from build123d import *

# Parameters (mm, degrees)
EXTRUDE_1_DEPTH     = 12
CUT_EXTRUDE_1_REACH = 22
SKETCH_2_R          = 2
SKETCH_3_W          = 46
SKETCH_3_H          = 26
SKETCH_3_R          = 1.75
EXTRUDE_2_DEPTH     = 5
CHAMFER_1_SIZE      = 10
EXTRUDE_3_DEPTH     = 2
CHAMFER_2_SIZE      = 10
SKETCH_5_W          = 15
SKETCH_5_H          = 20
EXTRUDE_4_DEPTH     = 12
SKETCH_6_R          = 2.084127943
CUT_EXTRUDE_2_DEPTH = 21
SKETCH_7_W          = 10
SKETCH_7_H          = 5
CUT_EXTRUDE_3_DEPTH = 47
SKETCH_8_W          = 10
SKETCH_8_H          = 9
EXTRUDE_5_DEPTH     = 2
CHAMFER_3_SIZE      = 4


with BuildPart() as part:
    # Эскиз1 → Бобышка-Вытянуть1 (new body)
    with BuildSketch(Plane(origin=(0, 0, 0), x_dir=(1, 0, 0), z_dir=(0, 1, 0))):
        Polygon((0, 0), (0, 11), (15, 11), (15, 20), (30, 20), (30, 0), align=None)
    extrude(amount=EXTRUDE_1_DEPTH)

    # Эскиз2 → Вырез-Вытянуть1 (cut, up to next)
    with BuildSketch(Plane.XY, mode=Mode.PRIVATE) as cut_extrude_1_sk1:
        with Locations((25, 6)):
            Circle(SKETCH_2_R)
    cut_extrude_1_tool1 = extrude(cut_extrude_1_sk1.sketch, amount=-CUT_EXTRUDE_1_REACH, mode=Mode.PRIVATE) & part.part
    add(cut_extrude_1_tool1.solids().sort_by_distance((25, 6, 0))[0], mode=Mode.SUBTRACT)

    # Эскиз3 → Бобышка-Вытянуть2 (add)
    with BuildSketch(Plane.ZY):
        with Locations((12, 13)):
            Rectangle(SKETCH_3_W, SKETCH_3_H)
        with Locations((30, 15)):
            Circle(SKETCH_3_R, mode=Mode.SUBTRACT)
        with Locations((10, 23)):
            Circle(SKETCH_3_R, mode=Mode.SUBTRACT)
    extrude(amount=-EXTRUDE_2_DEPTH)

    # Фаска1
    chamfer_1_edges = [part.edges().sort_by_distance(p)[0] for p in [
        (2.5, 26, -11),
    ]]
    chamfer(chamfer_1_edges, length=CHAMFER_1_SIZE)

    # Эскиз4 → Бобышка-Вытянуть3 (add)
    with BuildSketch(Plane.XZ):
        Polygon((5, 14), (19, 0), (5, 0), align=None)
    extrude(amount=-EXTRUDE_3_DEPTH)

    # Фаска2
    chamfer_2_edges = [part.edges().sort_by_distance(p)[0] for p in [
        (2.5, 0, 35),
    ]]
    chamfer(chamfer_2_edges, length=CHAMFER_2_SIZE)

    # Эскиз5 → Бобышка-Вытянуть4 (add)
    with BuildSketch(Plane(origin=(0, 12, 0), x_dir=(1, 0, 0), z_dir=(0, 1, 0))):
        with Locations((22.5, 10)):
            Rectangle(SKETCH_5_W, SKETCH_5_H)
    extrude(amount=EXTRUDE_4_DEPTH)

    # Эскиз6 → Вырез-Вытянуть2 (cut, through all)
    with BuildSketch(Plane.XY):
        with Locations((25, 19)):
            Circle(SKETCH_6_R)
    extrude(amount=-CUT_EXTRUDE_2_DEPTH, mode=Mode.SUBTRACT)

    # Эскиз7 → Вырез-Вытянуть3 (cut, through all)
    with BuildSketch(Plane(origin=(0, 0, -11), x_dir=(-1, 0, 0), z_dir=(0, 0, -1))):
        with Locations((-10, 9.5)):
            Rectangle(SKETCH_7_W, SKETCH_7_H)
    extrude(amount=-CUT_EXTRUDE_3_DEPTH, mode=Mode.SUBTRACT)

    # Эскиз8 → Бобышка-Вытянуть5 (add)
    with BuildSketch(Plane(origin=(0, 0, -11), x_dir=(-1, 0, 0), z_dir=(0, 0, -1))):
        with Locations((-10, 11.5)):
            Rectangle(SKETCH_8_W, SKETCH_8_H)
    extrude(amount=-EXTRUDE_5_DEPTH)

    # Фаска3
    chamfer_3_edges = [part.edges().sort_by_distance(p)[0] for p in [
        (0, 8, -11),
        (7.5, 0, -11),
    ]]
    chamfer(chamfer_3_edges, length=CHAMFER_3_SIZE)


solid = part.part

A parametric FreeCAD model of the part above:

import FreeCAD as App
import Part
import Sketcher

V = App.Vector


def edges_at(feature, points):
    """Names of the edges that pass closest to the given points."""
    edges = feature.Shape.Edges
    near = lambda p: min(range(len(edges)), key=lambda i: edges[i].distToShape(Part.Vertex(*p))[0])
    return sorted({f"Edge{near(p) + 1}" for p in points})

doc = App.newDocument("Part")
params = doc.addObject("Spreadsheet::Sheet", "Params")
for row, (alias, value) in enumerate([
    ("sketch1_width", "30 mm"),
    ("sketch1_height", "11 mm"),
    ("sketch1_height2", "20 mm"),
    ("pad1_length", "12 mm"),
    ("sketch2_diameter", "4 mm"),
    ("sketch3_diameter", "3.5 mm"),
    ("sketch3_width", "26 mm"),
    ("sketch3_height", "46 mm"),
    ("pad2_length", "5 mm"),
    ("chamfer_size", "10 mm"),
    ("sketch4_width", "14 mm"),
    ("pad3_length", "2 mm"),
    ("chamfer2_size", "10 mm"),
    ("sketch5_width", "15 mm"),
    ("sketch5_height", "20 mm"),
    ("pad4_length", "12 mm"),
    ("sketch7_width", "10 mm"),
    ("sketch7_height", "5 mm"),
    ("sketch8_width", "10 mm"),
    ("sketch8_height", "9 mm"),
    ("pad5_length", "2 mm"),
    ("chamfer3_size", "4 mm"),
], start=1):
    params.set(f"A{row}", alias)
    params.set(f"B{row}", "=" + value)
    params.setAlias(f"B{row}", alias)

body = doc.addObject("PartDesign::Body", "Body")

sketch1 = body.newObject("Sketcher::SketchObject", "Sketch")
sketch1.AttachmentSupport = (doc.getObject("XZ_Plane"), [""])
sketch1.MapMode = "FlatFace"
sketch1.addGeometry(Part.LineSegment(V(0, -11, 0), V(0, 0, 0)), False)
sketch1.addGeometry(Part.LineSegment(V(0, 0, 0), V(30, 0, 0)), False)
sketch1.addGeometry(Part.LineSegment(V(30, 0, 0), V(30, -20, 0)), False)
sketch1.addGeometry(Part.LineSegment(V(30, -20, 0), V(15, -20, 0)), False)
sketch1.addGeometry(Part.LineSegment(V(15, -20, 0), V(15, -11, 0)), False)
sketch1.addGeometry(Part.LineSegment(V(15, -11, 0), V(0, -11, 0)), False)
sketch1.addConstraint(Sketcher.Constraint("Coincident", 0, 2, 1, 1))
sketch1.addConstraint(Sketcher.Constraint("Coincident", 1, 2, 2, 1))
sketch1.addConstraint(Sketcher.Constraint("Coincident", 2, 2, 3, 1))
sketch1.addConstraint(Sketcher.Constraint("Coincident", 3, 2, 4, 1))
sketch1.addConstraint(Sketcher.Constraint("Coincident", 4, 2, 5, 1))
sketch1.addConstraint(Sketcher.Constraint("Coincident", 5, 2, 0, 1))
sketch1.addConstraint(Sketcher.Constraint("Vertical", 0))
sketch1.addConstraint(Sketcher.Constraint("Horizontal", 1))
sketch1.addConstraint(Sketcher.Constraint("Vertical", 2))
sketch1.addConstraint(Sketcher.Constraint("Horizontal", 3))
sketch1.addConstraint(Sketcher.Constraint("Vertical", 4))
sketch1.addConstraint(Sketcher.Constraint("Horizontal", 5))
sketch1.addConstraint(Sketcher.Constraint("Coincident", 0, 2, -1, 1))
sketch1.addConstraint(Sketcher.Constraint("Equal", 3, 5))
sketch1.addConstraint(Sketcher.Constraint("DistanceX", 1, 1, 1, 2, 30.0))
sketch1.addConstraint(Sketcher.Constraint("DistanceY", 0, 1, 0, 2, 11.0))
sketch1.addConstraint(Sketcher.Constraint("DistanceY", 2, 2, 2, 1, 20.0))
sketch1.setExpression("Constraints[14]", "Params.sketch1_width")
sketch1.setExpression("Constraints[15]", "Params.sketch1_height")
sketch1.setExpression("Constraints[16]", "Params.sketch1_height2")
pad1 = body.newObject("PartDesign::Pad", "Pad")
pad1.Profile = sketch1
pad1.setExpression("Length", "Params.pad1_length")
pad1.Reversed = True

sketch2 = body.newObject("Sketcher::SketchObject", "Sketch001")
sketch2.AttachmentSupport = (doc.getObject("XY_Plane"), [""])
sketch2.MapMode = "FlatFace"
sketch2.addGeometry(Part.Circle(V(25, 6, 0), V(0, 0, 1), 2), False)
sketch2.addConstraint(Sketcher.Constraint("Diameter", 0, 4.0))
sketch2.addConstraint(Sketcher.Constraint("DistanceX", -1, 1, 0, 3, 25.0))
sketch2.addConstraint(Sketcher.Constraint("DistanceY", -1, 1, 0, 3, 6.0))
sketch2.setExpression("Constraints[0]", "Params.sketch2_diameter")
pocket1 = body.newObject("PartDesign::Pocket", "Pocket")
pocket1.Profile = sketch2
pocket1.Type = "UpToFirst"

sketch3 = body.newObject("Sketcher::SketchObject", "Sketch002")
sketch3.AttachmentSupport = (doc.getObject("YZ_Plane"), [""])
sketch3.MapMode = "FlatFace"
sketch3.addGeometry(Part.LineSegment(V(26, -11, 0), V(0, -11, 0)), False)
sketch3.addGeometry(Part.LineSegment(V(0, -11, 0), V(0, 35, 0)), False)
sketch3.addGeometry(Part.LineSegment(V(0, 35, 0), V(26, 35, 0)), False)
sketch3.addGeometry(Part.LineSegment(V(26, 35, 0), V(26, -11, 0)), False)
sketch3.addGeometry(Part.Circle(V(15, 30, 0), V(0, 0, 1), 1.8), False)
sketch3.addGeometry(Part.Circle(V(23, 10, 0), V(0, 0, 1), 1.8), False)
sketch3.addConstraint(Sketcher.Constraint("Coincident", 0, 2, 1, 1))
sketch3.addConstraint(Sketcher.Constraint("Coincident", 1, 2, 2, 1))
sketch3.addConstraint(Sketcher.Constraint("Coincident", 2, 2, 3, 1))
sketch3.addConstraint(Sketcher.Constraint("Coincident", 3, 2, 0, 1))
sketch3.addConstraint(Sketcher.Constraint("Horizontal", 0))
sketch3.addConstraint(Sketcher.Constraint("Vertical", 1))
sketch3.addConstraint(Sketcher.Constraint("Horizontal", 2))
sketch3.addConstraint(Sketcher.Constraint("Vertical", 3))
sketch3.addConstraint(Sketcher.Constraint("Equal", 4, 5))
sketch3.addConstraint(Sketcher.Constraint("PointOnObject", 0, 2, -2))
sketch3.addConstraint(Sketcher.Constraint("Diameter", 4, 3.5))
sketch3.addConstraint(Sketcher.Constraint("DistanceX", 0, 2, 0, 1, 26.0))
sketch3.addConstraint(Sketcher.Constraint("DistanceY", 1, 1, 1, 2, 46.0))
sketch3.addConstraint(Sketcher.Constraint("DistanceX", -1, 1, 4, 3, 15.0))
sketch3.addConstraint(Sketcher.Constraint("DistanceY", -1, 1, 4, 3, 30.0))
sketch3.addConstraint(Sketcher.Constraint("DistanceX", -1, 1, 5, 3, 23.0))
sketch3.addConstraint(Sketcher.Constraint("DistanceY", -1, 1, 5, 3, 10.0))
sketch3.addConstraint(Sketcher.Constraint("DistanceY", 0, 2, -1, 1, 11.0))
sketch3.setExpression("Constraints[10]", "Params.sketch3_diameter")
sketch3.setExpression("Constraints[11]", "Params.sketch3_width")
sketch3.setExpression("Constraints[12]", "Params.sketch3_height")
pad2 = body.newObject("PartDesign::Pad", "Pad001")
pad2.Profile = sketch3
pad2.setExpression("Length", "Params.pad2_length")
doc.recompute()

chamfer = body.newObject("PartDesign::Chamfer", "Chamfer")
chamfer.Base = (pad2, edges_at(pad2, [(2.5, 26, -11)]))
chamfer.setExpression("Size", "Params.chamfer_size")

sketch4 = body.newObject("Sketcher::SketchObject", "Sketch003")
sketch4.AttachmentSupport = (doc.getObject("XZ_Plane"), [""])
sketch4.MapMode = "FlatFace"
sketch4.addGeometry(Part.LineSegment(V(19, 0, 0), V(5, 14, 0)), False)
sketch4.addGeometry(Part.LineSegment(V(5, 14, 0), V(5, 0, 0)), False)
sketch4.addGeometry(Part.LineSegment(V(5, 0, 0), V(19, 0, 0)), False)
sketch4.addConstraint(Sketcher.Constraint("Coincident", 0, 2, 1, 1))
sketch4.addConstraint(Sketcher.Constraint("Coincident", 1, 2, 2, 1))
sketch4.addConstraint(Sketcher.Constraint("Coincident", 2, 2, 0, 1))
sketch4.addConstraint(Sketcher.Constraint("Vertical", 1))
sketch4.addConstraint(Sketcher.Constraint("Horizontal", 2))
sketch4.addConstraint(Sketcher.Constraint("PointOnObject", 1, 2, -1))
sketch4.addConstraint(Sketcher.Constraint("Equal", 2, 1))
sketch4.addConstraint(Sketcher.Constraint("DistanceX", 2, 1, 2, 2, 14.0))
sketch4.addConstraint(Sketcher.Constraint("DistanceX", -1, 1, 0, 2, 5.0))
sketch4.setExpression("Constraints[7]", "Params.sketch4_width")
pad3 = body.newObject("PartDesign::Pad", "Pad002")
pad3.Profile = sketch4
pad3.setExpression("Length", "Params.pad3_length")
pad3.Reversed = True
doc.recompute()

chamfer2 = body.newObject("PartDesign::Chamfer", "Chamfer001")
chamfer2.Base = (pad3, edges_at(pad3, [(2.5, 0, 35)]))
chamfer2.setExpression("Size", "Params.chamfer2_size")

sketch5 = body.newObject("Sketcher::SketchObject", "Sketch004")
sketch5.AttachmentSupport = (doc.getObject("XZ_Plane"), [""])
sketch5.MapMode = "FlatFace"
sketch5.AttachmentOffset = App.Placement(V(0, 0, -12), App.Rotation())
sketch5.addGeometry(Part.LineSegment(V(15, -20, 0), V(15, 0, 0)), False)
sketch5.addGeometry(Part.LineSegment(V(15, 0, 0), V(30, 0, 0)), False)
sketch5.addGeometry(Part.LineSegment(V(30, 0, 0), V(30, -20, 0)), False)
sketch5.addGeometry(Part.LineSegment(V(30, -20, 0), V(15, -20, 0)), False)
sketch5.addConstraint(Sketcher.Constraint("Coincident", 0, 2, 1, 1))
sketch5.addConstraint(Sketcher.Constraint("Coincident", 1, 2, 2, 1))
sketch5.addConstraint(Sketcher.Constraint("Coincident", 2, 2, 3, 1))
sketch5.addConstraint(Sketcher.Constraint("Coincident", 3, 2, 0, 1))
sketch5.addConstraint(Sketcher.Constraint("Vertical", 0))
sketch5.addConstraint(Sketcher.Constraint("Horizontal", 1))
sketch5.addConstraint(Sketcher.Constraint("Vertical", 2))
sketch5.addConstraint(Sketcher.Constraint("Horizontal", 3))
sketch5.addConstraint(Sketcher.Constraint("PointOnObject", 0, 2, -1))
sketch5.addConstraint(Sketcher.Constraint("DistanceX", 1, 1, 1, 2, 15.0))
sketch5.addConstraint(Sketcher.Constraint("DistanceY", 0, 1, 0, 2, 20.0))
sketch5.addConstraint(Sketcher.Constraint("DistanceX", -1, 1, 0, 2, 15.0))
sketch5.setExpression("Constraints[9]", "Params.sketch5_width")
sketch5.setExpression("Constraints[10]", "Params.sketch5_height")
pad4 = body.newObject("PartDesign::Pad", "Pad003")
pad4.Profile = sketch5
pad4.setExpression("Length", "Params.pad4_length")
pad4.Reversed = True

sketch6 = body.newObject("Sketcher::SketchObject", "Sketch005")
sketch6.AttachmentSupport = (doc.getObject("XY_Plane"), [""])
sketch6.MapMode = "FlatFace"
sketch6.addGeometry(Part.Circle(V(25, 19, 0), V(0, 0, 1), 2.1), False)
sketch6.addConstraint(Sketcher.Constraint("DistanceX", -1, 1, 0, 3, 25.0))
sketch6.addConstraint(Sketcher.Constraint("DistanceY", -1, 1, 0, 3, 19.0))
sketch6.addConstraint(Sketcher.Constraint("Diameter", 0, 4.168256))
pocket2 = body.newObject("PartDesign::Pocket", "Pocket001")
pocket2.Profile = sketch6
pocket2.Type = "ThroughAll"

sketch7 = body.newObject("Sketcher::SketchObject", "Sketch006")
sketch7.AttachmentSupport = (doc.getObject("XY_Plane"), [""])
sketch7.MapMode = "FlatFace"
sketch7.AttachmentOffset = App.Placement(V(0, 0, -11), App.Rotation())
sketch7.addGeometry(Part.LineSegment(V(15, 12, 0), V(15, 7, 0)), False)
sketch7.addGeometry(Part.LineSegment(V(15, 7, 0), V(5, 7, 0)), False)
sketch7.addGeometry(Part.LineSegment(V(5, 7, 0), V(5, 12, 0)), False)
sketch7.addGeometry(Part.LineSegment(V(5, 12, 0), V(15, 12, 0)), False)
sketch7.addConstraint(Sketcher.Constraint("Coincident", 0, 2, 1, 1))
sketch7.addConstraint(Sketcher.Constraint("Coincident", 1, 2, 2, 1))
sketch7.addConstraint(Sketcher.Constraint("Coincident", 2, 2, 3, 1))
sketch7.addConstraint(Sketcher.Constraint("Coincident", 3, 2, 0, 1))
sketch7.addConstraint(Sketcher.Constraint("Vertical", 0))
sketch7.addConstraint(Sketcher.Constraint("Horizontal", 1))
sketch7.addConstraint(Sketcher.Constraint("Vertical", 2))
sketch7.addConstraint(Sketcher.Constraint("Horizontal", 3))
sketch7.addConstraint(Sketcher.Constraint("DistanceX", 1, 2, 1, 1, 10.0))
sketch7.addConstraint(Sketcher.Constraint("DistanceY", 0, 2, 0, 1, 5.0))
sketch7.addConstraint(Sketcher.Constraint("DistanceX", -1, 1, 0, 2, 15.0))
sketch7.addConstraint(Sketcher.Constraint("DistanceY", -1, 1, 0, 2, 7.0))
sketch7.setExpression("Constraints[8]", "Params.sketch7_width")
sketch7.setExpression("Constraints[9]", "Params.sketch7_height")
pocket3 = body.newObject("PartDesign::Pocket", "Pocket002")
pocket3.Profile = sketch7
pocket3.Type = "ThroughAll"
pocket3.Reversed = True

sketch8 = body.newObject("Sketcher::SketchObject", "Sketch007")
sketch8.AttachmentSupport = (doc.getObject("XY_Plane"), [""])
sketch8.MapMode = "FlatFace"
sketch8.AttachmentOffset = App.Placement(V(0, 0, -11), App.Rotation())
sketch8.addGeometry(Part.LineSegment(V(15, 16, 0), V(15, 7, 0)), False)
sketch8.addGeometry(Part.LineSegment(V(15, 7, 0), V(5, 7, 0)), False)
sketch8.addGeometry(Part.LineSegment(V(5, 7, 0), V(5, 16, 0)), False)
sketch8.addGeometry(Part.LineSegment(V(5, 16, 0), V(15, 16, 0)), False)
sketch8.addConstraint(Sketcher.Constraint("Coincident", 0, 2, 1, 1))
sketch8.addConstraint(Sketcher.Constraint("Coincident", 1, 2, 2, 1))
sketch8.addConstraint(Sketcher.Constraint("Coincident", 2, 2, 3, 1))
sketch8.addConstraint(Sketcher.Constraint("Coincident", 3, 2, 0, 1))
sketch8.addConstraint(Sketcher.Constraint("Vertical", 0))
sketch8.addConstraint(Sketcher.Constraint("Horizontal", 1))
sketch8.addConstraint(Sketcher.Constraint("Vertical", 2))
sketch8.addConstraint(Sketcher.Constraint("Horizontal", 3))
sketch8.addConstraint(Sketcher.Constraint("DistanceX", 1, 2, 1, 1, 10.0))
sketch8.addConstraint(Sketcher.Constraint("DistanceY", 0, 2, 0, 1, 9.0))
sketch8.addConstraint(Sketcher.Constraint("DistanceX", -1, 1, 0, 2, 15.0))
sketch8.addConstraint(Sketcher.Constraint("DistanceY", -1, 1, 0, 2, 7.0))
sketch8.setExpression("Constraints[8]", "Params.sketch8_width")
sketch8.setExpression("Constraints[9]", "Params.sketch8_height")
pad5 = body.newObject("PartDesign::Pad", "Pad004")
pad5.Profile = sketch8
pad5.setExpression("Length", "Params.pad5_length")
doc.recompute()

chamfer3 = body.newObject("PartDesign::Chamfer", "Chamfer002")
chamfer3.Base = (pad5, edges_at(pad5, [(0, 8, -11), (7.5, 0, -11)]))
chamfer3.setExpression("Size", "Params.chamfer3_size")

doc.recompute()
